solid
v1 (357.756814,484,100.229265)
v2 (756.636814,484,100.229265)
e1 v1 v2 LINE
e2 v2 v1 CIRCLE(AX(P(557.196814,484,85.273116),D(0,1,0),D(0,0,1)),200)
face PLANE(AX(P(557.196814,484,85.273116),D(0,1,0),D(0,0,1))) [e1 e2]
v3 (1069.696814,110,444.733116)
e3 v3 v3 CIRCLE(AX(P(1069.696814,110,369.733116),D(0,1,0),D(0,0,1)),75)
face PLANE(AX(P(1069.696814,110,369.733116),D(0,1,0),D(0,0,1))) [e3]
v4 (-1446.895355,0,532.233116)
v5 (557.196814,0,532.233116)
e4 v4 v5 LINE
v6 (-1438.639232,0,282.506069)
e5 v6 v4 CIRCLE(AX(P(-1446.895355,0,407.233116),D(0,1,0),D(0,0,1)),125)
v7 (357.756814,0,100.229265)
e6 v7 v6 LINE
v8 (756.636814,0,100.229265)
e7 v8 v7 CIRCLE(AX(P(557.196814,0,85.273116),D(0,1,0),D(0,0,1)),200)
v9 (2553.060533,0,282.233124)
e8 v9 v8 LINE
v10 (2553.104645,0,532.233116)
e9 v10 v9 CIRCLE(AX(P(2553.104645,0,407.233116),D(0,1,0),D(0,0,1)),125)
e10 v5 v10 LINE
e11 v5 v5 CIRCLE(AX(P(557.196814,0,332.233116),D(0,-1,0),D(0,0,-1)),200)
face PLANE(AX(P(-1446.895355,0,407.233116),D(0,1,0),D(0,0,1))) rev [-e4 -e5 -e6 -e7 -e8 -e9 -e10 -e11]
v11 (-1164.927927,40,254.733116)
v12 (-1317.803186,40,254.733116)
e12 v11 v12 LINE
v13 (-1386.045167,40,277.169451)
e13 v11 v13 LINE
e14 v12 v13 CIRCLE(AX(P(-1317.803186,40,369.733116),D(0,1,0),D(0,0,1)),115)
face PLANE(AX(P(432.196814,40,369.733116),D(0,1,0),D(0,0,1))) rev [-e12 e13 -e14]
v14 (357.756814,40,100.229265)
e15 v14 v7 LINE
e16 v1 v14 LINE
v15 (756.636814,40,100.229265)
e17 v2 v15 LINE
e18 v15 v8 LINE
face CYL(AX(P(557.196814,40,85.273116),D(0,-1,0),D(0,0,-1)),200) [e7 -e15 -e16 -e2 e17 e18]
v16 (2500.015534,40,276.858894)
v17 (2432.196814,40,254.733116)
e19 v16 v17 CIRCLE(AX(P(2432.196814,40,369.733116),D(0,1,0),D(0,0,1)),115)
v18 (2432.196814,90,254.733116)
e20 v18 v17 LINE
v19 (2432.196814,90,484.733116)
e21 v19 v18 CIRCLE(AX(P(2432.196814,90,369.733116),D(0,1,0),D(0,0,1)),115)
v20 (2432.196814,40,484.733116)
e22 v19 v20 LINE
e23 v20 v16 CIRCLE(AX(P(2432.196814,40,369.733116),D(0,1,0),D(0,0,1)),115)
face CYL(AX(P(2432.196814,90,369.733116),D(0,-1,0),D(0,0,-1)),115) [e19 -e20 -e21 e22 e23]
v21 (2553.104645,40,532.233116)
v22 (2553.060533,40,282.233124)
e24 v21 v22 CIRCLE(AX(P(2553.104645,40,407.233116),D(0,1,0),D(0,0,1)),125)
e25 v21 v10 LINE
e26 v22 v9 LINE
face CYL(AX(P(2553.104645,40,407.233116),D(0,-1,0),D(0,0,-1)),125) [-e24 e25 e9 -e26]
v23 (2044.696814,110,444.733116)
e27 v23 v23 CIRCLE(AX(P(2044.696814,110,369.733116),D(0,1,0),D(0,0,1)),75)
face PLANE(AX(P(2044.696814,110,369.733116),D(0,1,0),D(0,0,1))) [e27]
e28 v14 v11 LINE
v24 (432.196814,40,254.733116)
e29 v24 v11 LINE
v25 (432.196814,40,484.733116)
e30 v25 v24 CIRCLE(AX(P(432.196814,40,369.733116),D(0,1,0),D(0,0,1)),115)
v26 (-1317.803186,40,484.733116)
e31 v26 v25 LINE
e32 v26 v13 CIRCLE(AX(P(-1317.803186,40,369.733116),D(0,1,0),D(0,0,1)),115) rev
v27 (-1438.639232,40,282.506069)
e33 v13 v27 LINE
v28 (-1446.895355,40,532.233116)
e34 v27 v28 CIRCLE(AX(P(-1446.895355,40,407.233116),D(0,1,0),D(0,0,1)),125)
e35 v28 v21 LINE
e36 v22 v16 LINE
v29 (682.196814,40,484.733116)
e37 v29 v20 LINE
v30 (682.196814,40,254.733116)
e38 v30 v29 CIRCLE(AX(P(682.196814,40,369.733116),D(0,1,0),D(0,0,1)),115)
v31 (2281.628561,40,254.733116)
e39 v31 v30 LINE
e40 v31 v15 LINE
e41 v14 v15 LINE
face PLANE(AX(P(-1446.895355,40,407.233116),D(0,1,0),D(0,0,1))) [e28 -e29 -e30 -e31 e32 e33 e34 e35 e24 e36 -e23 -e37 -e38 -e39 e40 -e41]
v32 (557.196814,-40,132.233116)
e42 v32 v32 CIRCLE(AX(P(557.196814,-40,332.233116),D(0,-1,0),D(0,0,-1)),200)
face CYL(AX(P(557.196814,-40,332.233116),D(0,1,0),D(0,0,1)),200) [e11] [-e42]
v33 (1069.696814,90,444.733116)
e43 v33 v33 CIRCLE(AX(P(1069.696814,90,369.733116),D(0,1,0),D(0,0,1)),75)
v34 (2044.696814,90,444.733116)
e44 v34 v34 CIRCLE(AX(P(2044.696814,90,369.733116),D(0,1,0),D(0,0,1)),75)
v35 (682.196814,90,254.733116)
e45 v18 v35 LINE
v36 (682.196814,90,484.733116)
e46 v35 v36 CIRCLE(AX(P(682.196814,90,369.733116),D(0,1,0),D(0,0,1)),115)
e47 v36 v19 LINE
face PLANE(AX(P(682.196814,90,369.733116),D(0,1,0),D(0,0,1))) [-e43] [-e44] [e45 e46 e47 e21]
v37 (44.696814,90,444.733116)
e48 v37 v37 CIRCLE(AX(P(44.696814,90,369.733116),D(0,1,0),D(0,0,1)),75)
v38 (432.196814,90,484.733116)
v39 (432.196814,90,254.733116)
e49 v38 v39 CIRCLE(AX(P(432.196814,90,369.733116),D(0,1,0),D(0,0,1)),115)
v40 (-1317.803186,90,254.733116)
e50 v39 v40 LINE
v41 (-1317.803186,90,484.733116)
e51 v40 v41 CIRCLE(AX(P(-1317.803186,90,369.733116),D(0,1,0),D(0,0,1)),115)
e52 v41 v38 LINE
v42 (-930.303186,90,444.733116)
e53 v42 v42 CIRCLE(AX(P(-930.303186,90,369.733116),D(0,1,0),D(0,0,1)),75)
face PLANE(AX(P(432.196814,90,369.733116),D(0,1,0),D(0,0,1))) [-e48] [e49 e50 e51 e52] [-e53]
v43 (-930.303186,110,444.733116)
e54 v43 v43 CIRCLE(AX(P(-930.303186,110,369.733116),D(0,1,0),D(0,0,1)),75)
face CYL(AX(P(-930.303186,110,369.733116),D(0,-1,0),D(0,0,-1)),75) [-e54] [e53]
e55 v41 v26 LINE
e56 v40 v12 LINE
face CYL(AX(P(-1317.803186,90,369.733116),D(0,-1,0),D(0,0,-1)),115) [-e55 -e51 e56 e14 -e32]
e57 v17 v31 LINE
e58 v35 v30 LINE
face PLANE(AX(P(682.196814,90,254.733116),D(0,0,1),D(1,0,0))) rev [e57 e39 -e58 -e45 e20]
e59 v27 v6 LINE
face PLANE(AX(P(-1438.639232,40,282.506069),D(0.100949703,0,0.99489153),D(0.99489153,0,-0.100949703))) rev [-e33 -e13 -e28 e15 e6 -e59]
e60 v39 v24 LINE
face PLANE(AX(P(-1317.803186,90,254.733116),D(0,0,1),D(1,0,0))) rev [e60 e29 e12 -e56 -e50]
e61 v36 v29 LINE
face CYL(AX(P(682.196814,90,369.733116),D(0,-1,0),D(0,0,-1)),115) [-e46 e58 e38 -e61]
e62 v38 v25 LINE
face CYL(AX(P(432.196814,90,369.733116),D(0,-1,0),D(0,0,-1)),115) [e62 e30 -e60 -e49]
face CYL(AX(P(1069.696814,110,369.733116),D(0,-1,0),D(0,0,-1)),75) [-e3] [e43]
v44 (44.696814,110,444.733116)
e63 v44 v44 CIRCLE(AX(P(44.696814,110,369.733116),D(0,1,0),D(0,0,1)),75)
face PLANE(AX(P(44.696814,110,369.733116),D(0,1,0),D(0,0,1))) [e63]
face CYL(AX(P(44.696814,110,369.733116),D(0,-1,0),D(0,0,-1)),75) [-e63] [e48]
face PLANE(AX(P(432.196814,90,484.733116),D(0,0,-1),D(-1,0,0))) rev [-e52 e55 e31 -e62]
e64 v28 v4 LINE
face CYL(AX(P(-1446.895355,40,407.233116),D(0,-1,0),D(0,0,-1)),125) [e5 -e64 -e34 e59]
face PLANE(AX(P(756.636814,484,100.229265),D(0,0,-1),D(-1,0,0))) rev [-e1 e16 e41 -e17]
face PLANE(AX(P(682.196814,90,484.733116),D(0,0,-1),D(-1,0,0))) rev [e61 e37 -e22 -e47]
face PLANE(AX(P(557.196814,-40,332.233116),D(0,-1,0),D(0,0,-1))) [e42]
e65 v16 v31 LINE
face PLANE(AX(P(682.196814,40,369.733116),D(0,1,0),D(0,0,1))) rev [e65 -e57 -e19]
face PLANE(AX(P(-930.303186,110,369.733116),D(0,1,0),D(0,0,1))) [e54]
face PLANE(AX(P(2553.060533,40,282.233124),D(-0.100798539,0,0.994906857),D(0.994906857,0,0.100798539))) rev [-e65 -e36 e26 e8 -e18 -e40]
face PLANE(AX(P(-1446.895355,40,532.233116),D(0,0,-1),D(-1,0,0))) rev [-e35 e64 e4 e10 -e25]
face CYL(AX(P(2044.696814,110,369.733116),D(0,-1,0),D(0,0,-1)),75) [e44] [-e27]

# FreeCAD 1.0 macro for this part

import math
import FreeCAD as App
import Part
import Sketcher

V = App.Vector
Q = App.Units.Quantity

doc = App.newDocument("Part")
body = doc.addObject("PartDesign::Body", "Body")

sketch1 = body.newObject("Sketcher::SketchObject", "Sketch")
sketch1.AttachmentSupport = (doc.getObject("XZ_Plane"), [""])
sketch1.MapMode = "FlatFace"
sketch1.addGeometry(Part.LineSegment(V(-1447, 532, 0), V(2553, 532, 0)), False)
sketch1.addGeometry(Part.ArcOfCircle(Part.Circle(V(2553, 407, 0), V(0, 0, 1), 125), math.radians(-90), math.radians(90)), False)
sketch1.addGeometry(Part.LineSegment(V(2553, 282, 0), V(757, 100, 0)), False)
sketch1.addGeometry(Part.ArcOfCircle(Part.Circle(V(557, 85, 0), V(0, 0, 1), 200), math.radians(176), math.radians(364)), False)
sketch1.addGeometry(Part.LineSegment(V(358, 100, 0), V(-1439, 283, 0)), False)
sketch1.addGeometry(Part.ArcOfCircle(Part.Circle(V(-1447, 407, 0), V(0, 0, 1), 125), math.radians(90), math.radians(274)), False)
sketch1.addConstraint(Sketcher.Constraint("Tangent", 0, 2, 1, 2))
sketch1.addConstraint(Sketcher.Constraint("Coincident", 1, 1, 2, 1))
sketch1.addConstraint(Sketcher.Constraint("Coincident", 2, 2, 3, 2))
sketch1.addConstraint(Sketcher.Constraint("Coincident", 3, 1, 4, 1))
sketch1.addConstraint(Sketcher.Constraint("Coincident", 4, 2, 5, 2))
sketch1.addConstraint(Sketcher.Constraint("Tangent", 5, 1, 0, 1))
sketch1.addConstraint(Sketcher.Constraint("Horizontal", 0))
sketch1.addConstraint(Sketcher.Constraint("Equal", 1, 5))
sketch1.addConstraint(Sketcher.Constraint("Horizontal", 2, 2, 3, 1))
sketch1.addConstraint(Sketcher.Constraint("Equal", 2, 4))
sketch1.addConstraint(Sketcher.Constraint("Radius", 1, Q("125 mm")))
sketch1.addConstraint(Sketcher.Constraint("Radius", 3, Q("200 mm")))
sketch1.addConstraint(Sketcher.Constraint("DistanceX", 0, 1, 0, 2, Q("4000 mm")))
sketch1.addConstraint(Sketcher.Constraint("Distance", 2, Q("1805.62 mm")))
sketch1.addConstraint(Sketcher.Constraint("DistanceY", 3, 3, 1, 3, Q("321.96 mm")))
sketch1.addConstraint(Sketcher.Constraint("DistanceX", 3, 3, 2, 2, Q("199.44 mm")))
sketch1.addConstraint(Sketcher.Constraint("DistanceX", 4, 2, -1, 1, Q("1438.639232 mm")))
sketch1.addConstraint(Sketcher.Constraint("DistanceY", -1, 1, 4, 2, Q("282.506069 mm")))
sketch1.addConstraint(Sketcher.Constraint("DistanceX", 3, 3, 1, 3, Q("1995.907832 mm")))
pad1 = body.newObject("PartDesign::Pad", "Pad")
pad1.Profile = sketch1
pad1.Length = 40
pad1.Reversed = True

sketch2 = body.newObject("Sketcher::SketchObject", "Sketch001")
sketch2.AttachmentSupport = (doc.getObject("XZ_Plane"), [""])
sketch2.MapMode = "FlatFace"
sketch2.AttachmentOffset = App.Placement(V(0, 0, -40), App.Rotation())
sketch2.addGeometry(Part.LineSegment(V(2432, 255, 0), V(682, 255, 0)), False)
sketch2.addGeometry(Part.ArcOfCircle(Part.Circle(V(682, 370, 0), V(0, 0, 1), 115), math.radians(90), math.radians(270)), False)
sketch2.addGeometry(Part.LineSegment(V(682, 485, 0), V(2432, 485, 0)), False)
sketch2.addGeometry(Part.ArcOfCircle(Part.Circle(V(2432, 370, 0), V(0, 0, 1), 115), math.radians(-90), math.radians(90)), False)
sketch2.addGeometry(Part.LineSegment(V(-1318, 485, 0), V(432, 485, 0)), False)
sketch2.addGeometry(Part.ArcOfCircle(Part.Circle(V(432, 370, 0), V(0, 0, 1), 115), math.radians(-90), math.radians(90)), False)
sketch2.addGeometry(Part.LineSegment(V(432, 255, 0), V(-1318, 255, 0)), False)
sketch2.addGeometry(Part.ArcOfCircle(Part.Circle(V(-1318, 370, 0), V(0, 0, 1), 115), math.radians(90), math.radians(270)), False)
sketch2.addConstraint(Sketcher.Constraint("Tangent", 0, 2, 1, 2))
sketch2.addConstraint(Sketcher.Constraint("Tangent", 1, 1, 2, 1))
sketch2.addConstraint(Sketcher.Constraint("Tangent", 2, 2, 3, 2))
sketch2.addConstraint(Sketcher.Constraint("Tangent", 3, 1, 0, 1))
sketch2.addConstraint(Sketcher.Constraint("Tangent", 4, 2, 5, 2))
sketch2.addConstraint(Sketcher.Constraint("Tangent", 5, 1, 6, 1))
sketch2.addConstraint(Sketcher.Constraint("Tangent", 6, 2, 7, 2))
sketch2.addConstraint(Sketcher.Constraint("Tangent", 7, 1, 4, 1))
sketch2.addConstraint(Sketcher.Constraint("Horizontal", 0))
sketch2.addConstraint(Sketcher.Constraint("Horizontal", 2))
sketch2.addConstraint(Sketcher.Constraint("Horizontal", 4))
sketch2.addConstraint(Sketcher.Constraint("Horizontal", 6))
sketch2.addConstraint(Sketcher.Constraint("Equal", 3, 5))
sketch2.addConstraint(Sketcher.Constraint("Horizontal", 3, 3, 5, 3))
sketch2.addConstraint(Sketcher.Constraint("Equal", 2, 4))
sketch2.addConstraint(Sketcher.Constraint("Radius", 1, Q("115 mm")))
sketch2.addConstraint(Sketcher.Constraint("DistanceX", 0, 2, 0, 1, Q("1750 mm")))
sketch2.addConstraint(Sketcher.Constraint("DistanceX", 5, 3, 1, 3, Q("250 mm")))
sketch2.addConstraint(Sketcher.Constraint("DistanceX", -1, 1, 1, 3, Q("682.196814 mm")))
sketch2.addConstraint(Sketcher.Constraint("DistanceY", -1, 1, 1, 3, Q("369.733116 mm")))
pad2 = body.newObject("PartDesign::Pad", "Pad001")
pad2.Profile = sketch2
pad2.Length = 50
pad2.Reversed = True

sketch3 = body.newObject("Sketcher::SketchObject", "Sketch002")
sketch3.AttachmentSupport = (doc.getObject("XZ_Plane"), [""])
sketch3.MapMode = "FlatFace"
sketch3.AttachmentOffset = App.Placement(V(0, 0, -90), App.Rotation())
sketch3.addGeometry(Part.Circle(V(-930, 370, 0), V(0, 0, 1), 75), False)
sketch3.addGeometry(Part.Circle(V(45, 370, 0), V(0, 0, 1), 75), False)
sketch3.addGeometry(Part.Circle(V(1070, 370, 0), V(0, 0, 1), 75), False)
sketch3.addGeometry(Part.Circle(V(2045, 370, 0), V(0, 0, 1), 75), False)
sketch3.addConstraint(Sketcher.Constraint("Equal", 0, 1))
sketch3.addConstraint(Sketcher.Constraint("Equal", 1, 2))
sketch3.addConstraint(Sketcher.Constraint("Equal", 2, 3))
sketch3.addConstraint(Sketcher.Constraint("Horizontal", 0, 3, 1, 3))
sketch3.addConstraint(Sketcher.Constraint("Horizontal", 1, 3, 2, 3))
sketch3.addConstraint(Sketcher.Constraint("Horizontal", 2, 3, 3, 3))
sketch3.addConstraint(Sketcher.Constraint("Diameter", 0, Q("150 mm")))
sketch3.addConstraint(Sketcher.Constraint("DistanceX", 0, 3, 1, 3, Q("975 mm")))
sketch3.addConstraint(Sketcher.Constraint("DistanceX", 1, 3, 2, 3, Q("1025 mm")))
sketch3.addConstraint(Sketcher.Constraint("DistanceX", 2, 3, 3, 3, Q("975 mm")))
sketch3.addConstraint(Sketcher.Constraint("DistanceX", 0, 3, -1, 1, Q("930.303186 mm")))
sketch3.addConstraint(Sketcher.Constraint("DistanceY", -1, 1, 0, 3, Q("369.733116 mm")))
pad3 = body.newObject("PartDesign::Pad", "Pad002")
pad3.Profile = sketch3
pad3.Length = 20
pad3.Reversed = True

sketch4 = body.newObject("Sketcher::SketchObject", "Sketch003")
sketch4.AttachmentSupport = (doc.getObject("XZ_Plane"), [""])
sketch4.MapMode = "FlatFace"
sketch4.addGeometry(Part.Circle(V(557, 332, 0), V(0, 0, 1), 200), False)
sketch4.addConstraint(Sketcher.Constraint("Diameter", 0, Q("400 mm")))
sketch4.addConstraint(Sketcher.Constraint("DistanceX", -1, 1, 0, 3, Q("557.196814 mm")))
sketch4.addConstraint(Sketcher.Constraint("DistanceY", -1, 1, 0, 3, Q("332.233116 mm")))
pad4 = body.newObject("PartDesign::Pad", "Pad003")
pad4.Profile = sketch4
pad4.Length = 40

sketch5 = body.newObject("Sketcher::SketchObject", "Sketch004")
sketch5.AttachmentSupport = (doc.getObject("XZ_Plane"), [""])
sketch5.MapMode = "FlatFace"
sketch5.AttachmentOffset = App.Placement(V(0, 0, -40), App.Rotation())
sketch5.addGeometry(Part.LineSegment(V(358, 100, 0), V(757, 100, 0)), False)
sketch5.addGeometry(Part.ArcOfCircle(Part.Circle(V(557, 85, 0), V(0, 0, 1), 200), math.radians(176), math.radians(364)), False)
sketch5.addConstraint(Sketcher.Constraint("Coincident", 0, 1, 1, 1))
sketch5.addConstraint(Sketcher.Constraint("Coincident", 1, 2, 0, 2))
sketch5.addConstraint(Sketcher.Constraint("Horizontal", 0))
sketch5.addConstraint(Sketcher.Constraint("Radius", 1, Q("200 mm")))
sketch5.addConstraint(Sketcher.Constraint("DistanceX", 0, 1, 0, 2, Q("398.88 mm")))
sketch5.addConstraint(Sketcher.Constraint("DistanceX", -1, 1, 1, 3, Q("557.196814 mm")))
sketch5.addConstraint(Sketcher.Constraint("DistanceY", -1, 1, 1, 3, Q("85.273116 mm")))
pad5 = body.newObject("PartDesign::Pad", "Pad004")
pad5.Profile = sketch5
pad5.Length = 444
pad5.Reversed = True

doc.recompute()
